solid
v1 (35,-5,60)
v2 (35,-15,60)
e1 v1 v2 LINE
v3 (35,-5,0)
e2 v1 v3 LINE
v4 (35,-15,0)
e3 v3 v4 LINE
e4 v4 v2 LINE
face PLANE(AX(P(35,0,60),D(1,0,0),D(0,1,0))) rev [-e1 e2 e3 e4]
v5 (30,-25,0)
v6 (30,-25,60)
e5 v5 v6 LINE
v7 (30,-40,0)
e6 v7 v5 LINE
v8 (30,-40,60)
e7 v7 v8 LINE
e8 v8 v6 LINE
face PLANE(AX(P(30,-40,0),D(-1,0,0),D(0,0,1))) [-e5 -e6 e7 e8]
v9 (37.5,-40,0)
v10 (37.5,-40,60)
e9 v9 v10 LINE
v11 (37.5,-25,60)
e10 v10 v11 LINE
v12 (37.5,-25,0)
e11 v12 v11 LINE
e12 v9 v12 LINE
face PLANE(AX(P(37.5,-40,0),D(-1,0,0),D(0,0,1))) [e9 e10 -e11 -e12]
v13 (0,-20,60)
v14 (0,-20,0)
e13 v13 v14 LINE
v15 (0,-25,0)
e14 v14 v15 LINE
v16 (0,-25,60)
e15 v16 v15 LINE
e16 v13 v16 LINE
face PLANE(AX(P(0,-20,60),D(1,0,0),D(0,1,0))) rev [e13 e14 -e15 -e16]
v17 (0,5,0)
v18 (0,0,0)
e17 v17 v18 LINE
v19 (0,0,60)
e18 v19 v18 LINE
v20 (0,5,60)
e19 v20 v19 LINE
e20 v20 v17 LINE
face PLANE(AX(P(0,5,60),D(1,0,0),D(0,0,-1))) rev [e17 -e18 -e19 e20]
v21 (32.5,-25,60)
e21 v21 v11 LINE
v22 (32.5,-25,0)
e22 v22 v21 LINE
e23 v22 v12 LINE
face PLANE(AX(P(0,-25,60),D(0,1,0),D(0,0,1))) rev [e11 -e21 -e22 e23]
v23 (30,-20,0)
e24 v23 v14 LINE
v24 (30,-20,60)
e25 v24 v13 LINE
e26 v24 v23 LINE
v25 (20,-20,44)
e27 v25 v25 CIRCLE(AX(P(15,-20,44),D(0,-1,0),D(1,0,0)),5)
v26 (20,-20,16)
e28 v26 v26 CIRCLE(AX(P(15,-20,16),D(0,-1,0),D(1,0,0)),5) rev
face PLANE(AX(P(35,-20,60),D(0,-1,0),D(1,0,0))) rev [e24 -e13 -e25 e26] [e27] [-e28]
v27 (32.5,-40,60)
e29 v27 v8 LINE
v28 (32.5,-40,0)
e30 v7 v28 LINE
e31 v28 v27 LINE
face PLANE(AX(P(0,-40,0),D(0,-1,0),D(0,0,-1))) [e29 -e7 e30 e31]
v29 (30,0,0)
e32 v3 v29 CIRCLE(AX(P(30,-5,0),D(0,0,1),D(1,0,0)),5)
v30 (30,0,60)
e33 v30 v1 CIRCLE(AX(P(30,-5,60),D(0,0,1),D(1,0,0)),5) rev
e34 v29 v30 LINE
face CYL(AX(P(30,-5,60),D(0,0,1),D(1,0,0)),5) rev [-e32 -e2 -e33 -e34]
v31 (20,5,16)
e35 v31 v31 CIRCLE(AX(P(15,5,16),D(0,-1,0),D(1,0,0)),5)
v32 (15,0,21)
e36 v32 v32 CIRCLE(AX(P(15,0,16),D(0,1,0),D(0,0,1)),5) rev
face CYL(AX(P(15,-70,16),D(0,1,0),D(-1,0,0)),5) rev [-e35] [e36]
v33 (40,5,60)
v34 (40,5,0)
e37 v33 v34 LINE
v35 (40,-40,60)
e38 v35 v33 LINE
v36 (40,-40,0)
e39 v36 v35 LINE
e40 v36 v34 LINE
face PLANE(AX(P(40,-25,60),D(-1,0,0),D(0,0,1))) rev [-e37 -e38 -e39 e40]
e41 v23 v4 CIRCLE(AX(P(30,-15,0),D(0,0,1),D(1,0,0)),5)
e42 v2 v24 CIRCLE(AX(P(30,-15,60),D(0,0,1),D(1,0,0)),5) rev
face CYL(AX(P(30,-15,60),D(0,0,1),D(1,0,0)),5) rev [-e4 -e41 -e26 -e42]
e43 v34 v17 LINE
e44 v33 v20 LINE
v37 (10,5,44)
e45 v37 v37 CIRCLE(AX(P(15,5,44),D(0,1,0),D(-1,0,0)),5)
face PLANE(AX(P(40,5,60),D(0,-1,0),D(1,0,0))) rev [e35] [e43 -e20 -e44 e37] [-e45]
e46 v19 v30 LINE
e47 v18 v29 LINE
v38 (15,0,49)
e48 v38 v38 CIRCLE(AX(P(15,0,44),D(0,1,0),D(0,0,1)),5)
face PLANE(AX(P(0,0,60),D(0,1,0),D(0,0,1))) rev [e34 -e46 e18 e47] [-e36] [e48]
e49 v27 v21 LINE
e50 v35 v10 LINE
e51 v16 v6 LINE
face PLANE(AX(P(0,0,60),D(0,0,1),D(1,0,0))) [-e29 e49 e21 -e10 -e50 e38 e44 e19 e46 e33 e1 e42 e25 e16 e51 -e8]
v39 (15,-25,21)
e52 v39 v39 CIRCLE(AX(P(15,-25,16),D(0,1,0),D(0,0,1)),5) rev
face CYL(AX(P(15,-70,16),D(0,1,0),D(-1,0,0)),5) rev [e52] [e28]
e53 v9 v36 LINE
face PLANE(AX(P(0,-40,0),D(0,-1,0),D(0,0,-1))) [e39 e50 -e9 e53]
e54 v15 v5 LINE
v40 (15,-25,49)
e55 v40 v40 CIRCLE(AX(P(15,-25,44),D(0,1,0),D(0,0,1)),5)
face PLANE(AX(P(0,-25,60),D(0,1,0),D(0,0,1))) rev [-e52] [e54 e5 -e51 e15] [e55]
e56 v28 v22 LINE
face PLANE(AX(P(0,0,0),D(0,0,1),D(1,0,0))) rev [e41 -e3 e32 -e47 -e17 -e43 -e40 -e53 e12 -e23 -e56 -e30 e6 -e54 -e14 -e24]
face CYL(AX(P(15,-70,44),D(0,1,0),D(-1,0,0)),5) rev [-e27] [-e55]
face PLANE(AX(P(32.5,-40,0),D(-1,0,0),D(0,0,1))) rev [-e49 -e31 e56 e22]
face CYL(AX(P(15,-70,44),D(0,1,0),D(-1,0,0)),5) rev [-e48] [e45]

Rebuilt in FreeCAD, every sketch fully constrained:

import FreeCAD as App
import Part
import Sketcher
Q = App.Units.Quantity


def edges_at(feature, points):
    """Names of the edges that pass closest to the given points."""
    edges = feature.Shape.Edges
    near = lambda p: min(range(len(edges)), key=lambda i: edges[i].distToShape(Part.Vertex(*p))[0])
    return sorted({f"Edge{near(p) + 1}" for p in points})


def add_polygon(sketch, points):
    """Adds a closed chain of lines whose ends are joined by coincident constraints."""
    first, n = sketch.GeometryCount, len(points)
    for a, b in zip(points, points[1:] + points[:1]):
        sketch.addGeometry(Part.LineSegment(App.Vector(*a, 0), App.Vector(*b, 0)), False)
    for i in range(n):
        sketch.addConstraint(Sketcher.Constraint("Coincident", first + i, 2, first + (i + 1) % n, 1))

doc = App.newDocument("Part")
params = doc.addObject("Spreadsheet::Sheet", "Params")
for row, (alias, value) in enumerate([
    ("sketch1_width", "35 mm"),
    ("sketch1_width2", "40 mm"),
    ("sketch1_height", "20 mm"),
    ("sketch1_height2", "5 mm"),
    ("pad1_length", "60 mm"),
    ("fillet_radius", "5 mm"),
    ("sketch2_diameter", "10 mm"),
    ("pocket1_length", "75 mm"),
    ("sketch3_height", "60 mm"),
    ("sketch3_width", "2.5 mm"),
    ("pad2_length", "15 mm"),
], start=1):
    params.set(f"A{row}", alias)
    params.set(f"B{row}", "=" + value)
    params.setAlias(f"B{row}", alias)

body = doc.addObject("PartDesign::Body", "Body")

sketch1 = body.newObject("Sketcher::SketchObject", "Sketch")
sketch1.AttachmentSupport = (doc.getObject("XY_Plane"), [""])
sketch1.MapMode = "FlatFace"
add_polygon(sketch1, [(0, 0), (35, 0), (35, -20), (0, -20), (0, -25), (40, -25), (40, 5), (0, 5)])
sketch1.addConstraint([
    Sketcher.Constraint("Horizontal", 0),
    Sketcher.Constraint("Vertical", 1),
    Sketcher.Constraint("Horizontal", 2),
    Sketcher.Constraint("Vertical", 3),
    Sketcher.Constraint("Horizontal", 4),
    Sketcher.Constraint("Vertical", 5),
    Sketcher.Constraint("Horizontal", 6),
    Sketcher.Constraint("Vertical", 7),
    Sketcher.Constraint("Coincident", 7, 2, -1, 1),
    Sketcher.Constraint("PointOnObject", 2, 2, -2),
    Sketcher.Constraint("Equal", 3, 7),
    Sketcher.Constraint("DistanceX", 0, 1, 0, 2, Q("35 mm")),
    Sketcher.Constraint("DistanceX", 4, 1, 4, 2, Q("40 mm")),
    Sketcher.Constraint("DistanceY", 1, 2, 1, 1, Q("20 mm")),
    Sketcher.Constraint("DistanceY", 3, 2, 3, 1, Q("5 mm")),
])
sketch1.setExpression("Constraints[19]", "Params.sketch1_width")
sketch1.setExpression("Constraints[20]", "Params.sketch1_width2")
sketch1.setExpression("Constraints[21]", "Params.sketch1_height")
sketch1.setExpression("Constraints[22]", "Params.sketch1_height2")
pad1 = body.newObject("PartDesign::Pad", "Pad")
pad1.Profile = sketch1
pad1.setExpression("Length", "Params.pad1_length")
doc.recompute()

fillet = body.newObject("PartDesign::Fillet", "Fillet")
fillet.Base = (pad1, edges_at(pad1, [(35, -20, 30), (35, 0, 30)]))
fillet.setExpression("Radius", "Params.fillet_radius")

sketch2 = body.newObject("Sketcher::SketchObject", "Sketch001")
sketch2.AttachmentSupport = (doc.getObject("XZ_Plane"), [""])
sketch2.MapMode = "FlatFace"
sketch2.AttachmentOffset = App.Placement(App.Vector(0, 0, -5), App.Rotation())
sketch2.addGeometry([
    Part.Circle(App.Vector(15, 44, 0), App.Vector(0, 0, 1), 5),
    Part.Circle(App.Vector(15, 16, 0), App.Vector(0, 0, 1), 5),
], False)
sketch2.addConstraint([
    Sketcher.Constraint("Equal", 0, 1),
    Sketcher.Constraint("Vertical", 0, 3, 1, 3),
    Sketcher.Constraint("Diameter", 0, Q("10 mm")),
    Sketcher.Constraint("DistanceX", -1, 1, 0, 3, Q("15 mm")),
    Sketcher.Constraint("DistanceY", -1, 1, 0, 3, Q("44 mm")),
    Sketcher.Constraint("DistanceY", -1, 1, 1, 3, Q("16 mm")),
])
sketch2.setExpression("Constraints[2]", "Params.sketch2_diameter")
pocket1 = body.newObject("PartDesign::Pocket", "Pocket")
pocket1.Profile = sketch2
pocket1.setExpression("Length", "Params.pocket1_length")
pocket1.Reversed = True

sketch3 = body.newObject("Sketcher::SketchObject", "Sketch002")
sketch3.AttachmentSupport = (doc.getObject("XZ_Plane"), [""])
sketch3.MapMode = "FlatFace"
sketch3.AttachmentOffset = App.Placement(App.Vector(0, 0, 25), App.Rotation())
add_polygon(sketch3, [(30, 60), (30, 0), (32.5, 0), (32.5, 60)])
add_polygon(sketch3, [(37.5, 60), (37.5, 0), (40, 0), (40, 60)])
sketch3.addConstraint([
    Sketcher.Constraint("Vertical", 0),
    Sketcher.Constraint("Horizontal", 1),
    Sketcher.Constraint("Vertical", 2),
    Sketcher.Constraint("Horizontal", 3),
    Sketcher.Constraint("Vertical", 4),
    Sketcher.Constraint("Horizontal", 5),
    Sketcher.Constraint("Vertical", 6),
    Sketcher.Constraint("Horizontal", 7),
    Sketcher.Constraint("PointOnObject", 0, 2, -1),
    Sketcher.Constraint("PointOnObject", 4, 2, -1),
    Sketcher.Constraint("Horizontal", 3, 2, 6, 2),
    Sketcher.Constraint("Equal", 3, 5),
    Sketcher.Constraint("DistanceY", 0, 2, 0, 1, Q("60 mm")),
    Sketcher.Constraint("DistanceX", 1, 1, 1, 2, Q("2.5 mm")),
    Sketcher.Constraint("DistanceX", -1, 1, 0, 2, Q("30 mm")),
    Sketcher.Constraint("DistanceX", -1, 1, 5, 2, Q("40 mm")),
])
sketch3.setExpression("Constraints[20]", "Params.sketch3_height")
sketch3.setExpression("Constraints[21]", "Params.sketch3_width")
pad2 = body.newObject("PartDesign::Pad", "Pad001")
pad2.Profile = sketch3
pad2.setExpression("Length", "Params.pad2_length")

doc.recompute()
